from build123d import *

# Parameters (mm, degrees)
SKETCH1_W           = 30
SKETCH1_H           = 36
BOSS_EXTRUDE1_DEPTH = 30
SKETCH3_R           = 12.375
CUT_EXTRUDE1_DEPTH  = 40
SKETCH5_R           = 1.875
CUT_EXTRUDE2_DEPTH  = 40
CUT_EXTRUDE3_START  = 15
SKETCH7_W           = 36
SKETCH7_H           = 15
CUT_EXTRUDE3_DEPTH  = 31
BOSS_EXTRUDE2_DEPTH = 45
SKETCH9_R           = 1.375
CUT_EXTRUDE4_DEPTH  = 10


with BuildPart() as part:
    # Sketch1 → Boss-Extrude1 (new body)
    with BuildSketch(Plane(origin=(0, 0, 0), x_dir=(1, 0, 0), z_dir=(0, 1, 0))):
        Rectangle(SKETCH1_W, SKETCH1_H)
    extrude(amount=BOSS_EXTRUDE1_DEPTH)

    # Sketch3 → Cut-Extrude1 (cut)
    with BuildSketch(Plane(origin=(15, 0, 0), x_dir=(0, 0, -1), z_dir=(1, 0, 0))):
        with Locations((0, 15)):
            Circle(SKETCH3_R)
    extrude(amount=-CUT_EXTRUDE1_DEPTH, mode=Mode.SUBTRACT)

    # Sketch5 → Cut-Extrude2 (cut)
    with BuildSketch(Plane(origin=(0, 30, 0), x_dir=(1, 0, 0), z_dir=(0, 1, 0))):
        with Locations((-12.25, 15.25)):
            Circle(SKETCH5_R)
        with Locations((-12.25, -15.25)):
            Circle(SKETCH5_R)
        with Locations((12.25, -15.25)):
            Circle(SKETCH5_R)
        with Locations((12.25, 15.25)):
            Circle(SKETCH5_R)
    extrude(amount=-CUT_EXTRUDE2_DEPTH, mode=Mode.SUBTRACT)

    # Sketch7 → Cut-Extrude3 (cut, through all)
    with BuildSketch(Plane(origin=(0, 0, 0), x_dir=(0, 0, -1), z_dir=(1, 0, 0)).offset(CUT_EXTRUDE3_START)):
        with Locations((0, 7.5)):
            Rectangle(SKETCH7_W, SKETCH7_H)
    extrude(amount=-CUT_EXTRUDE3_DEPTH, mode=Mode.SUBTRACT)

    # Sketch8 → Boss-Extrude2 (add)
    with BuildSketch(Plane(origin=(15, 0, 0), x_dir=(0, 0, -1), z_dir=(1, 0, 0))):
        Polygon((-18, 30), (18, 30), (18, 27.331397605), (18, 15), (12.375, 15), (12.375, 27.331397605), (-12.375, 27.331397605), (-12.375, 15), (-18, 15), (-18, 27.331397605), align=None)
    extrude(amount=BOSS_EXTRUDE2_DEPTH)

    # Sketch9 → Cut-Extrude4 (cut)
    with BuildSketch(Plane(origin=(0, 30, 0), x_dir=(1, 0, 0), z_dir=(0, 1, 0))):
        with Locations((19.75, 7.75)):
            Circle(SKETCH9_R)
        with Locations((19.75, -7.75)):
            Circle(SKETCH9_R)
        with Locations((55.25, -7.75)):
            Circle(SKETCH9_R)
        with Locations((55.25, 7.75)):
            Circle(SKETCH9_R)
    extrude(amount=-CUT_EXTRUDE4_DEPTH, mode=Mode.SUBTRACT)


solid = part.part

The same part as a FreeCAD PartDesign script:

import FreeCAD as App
import Part
import Sketcher
Q = App.Units.Quantity


def add_polygon(sketch, points):
    """Adds a closed chain of lines whose ends are joined by coincident constraints."""
    first, n = sketch.GeometryCount, len(points)
    for a, b in zip(points, points[1:] + points[:1]):
        sketch.addGeometry(Part.LineSegment(App.Vector(*a, 0), App.Vector(*b, 0)), False)
    for i in range(n):
        sketch.addConstraint(Sketcher.Constraint("Coincident", first + i, 2, first + (i + 1) % n, 1))

doc = App.newDocument("Part")
body = doc.addObject("PartDesign::Body", "Body")

sketch1 = body.newObject("Sketcher::SketchObject", "Sketch")
sketch1.AttachmentSupport = (doc.getObject("XZ_Plane"), [""])
sketch1.MapMode = "FlatFace"
add_polygon(sketch1, [(-15, -18), (-15, 18), (15, 18), (15, -18)])
sketch1.addConstraint(Sketcher.Constraint("Vertical", 0))
sketch1.addConstraint(Sketcher.Constraint("Horizontal", 1))
sketch1.addConstraint(Sketcher.Constraint("Vertical", 2))
sketch1.addConstraint(Sketcher.Constraint("Horizontal", 3))
sketch1.addConstraint(Sketcher.Constraint("Symmetric", 0, 2, 2, 2, -1, 1))
sketch1.addConstraint(Sketcher.Constraint("DistanceX", 1, 1, 1, 2, Q("30 mm")))
sketch1.addConstraint(Sketcher.Constraint("DistanceY", 0, 1, 0, 2, Q("36 mm")))
pad1 = body.newObject("PartDesign::Pad", "Pad")
pad1.Profile = sketch1
pad1.Length = 30
pad1.Reversed = True

sketch2 = body.newObject("Sketcher::SketchObject", "Sketch001")
sketch2.AttachmentSupport = (doc.getObject("YZ_Plane"), [""])
sketch2.MapMode = "FlatFace"
sketch2.AttachmentOffset = App.Placement(App.Vector(0, 0, 15), App.Rotation())
sketch2.addGeometry(Part.Circle(App.Vector(15, 0, 0), App.Vector(0, 0, 1), 12.375), False)
sketch2.addConstraint(Sketcher.Constraint("PointOnObject", 0, 3, -1))
sketch2.addConstraint(Sketcher.Constraint("Diameter", 0, Q("24.75 mm")))
sketch2.addConstraint(Sketcher.Constraint("DistanceX", -1, 1, 0, 3, Q("15 mm")))
pocket1 = body.newObject("PartDesign::Pocket", "Pocket")
pocket1.Profile = sketch2
pocket1.Length = 40

sketch3 = body.newObject("Sketcher::SketchObject", "Sketch002")
sketch3.AttachmentSupport = (doc.getObject("XZ_Plane"), [""])
sketch3.MapMode = "FlatFace"
sketch3.AttachmentOffset = App.Placement(App.Vector(0, 0, -30), App.Rotation())
sketch3.addGeometry(Part.Circle(App.Vector(-12.25, -15.25, 0), App.Vector(0, 0, 1), 1.875), False)
sketch3.addGeometry(Part.Circle(App.Vector(-12.25, 15.25, 0), App.Vector(0, 0, 1), 1.875), False)
sketch3.addGeometry(Part.Circle(App.Vector(12.25, 15.25, 0), App.Vector(0, 0, 1), 1.875), False)
sketch3.addGeometry(Part.Circle(App.Vector(12.25, -15.25, 0), App.Vector(0, 0, 1), 1.875), False)
sketch3.addConstraint(Sketcher.Constraint("Equal", 0, 1))
sketch3.addConstraint(Sketcher.Constraint("Equal", 1, 2))
sketch3.addConstraint(Sketcher.Constraint("Equal", 2, 3))
sketch3.addConstraint(Sketcher.Constraint("Symmetric", 0, 3, 2, 3, -1, 1))
sketch3.addConstraint(Sketcher.Constraint("Symmetric", 1, 3, 3, 3, -1, 1))
sketch3.addConstraint(Sketcher.Constraint("Symmetric", 1, 3, 2, 3, -2))
sketch3.addConstraint(Sketcher.Constraint("Diameter", 0, Q("3.75 mm")))
sketch3.addConstraint(Sketcher.Constraint("DistanceY", 0, 3, 1, 3, Q("30.5 mm")))
sketch3.addConstraint(Sketcher.Constraint("DistanceX", 1, 3, 2, 3, Q("24.5 mm")))
pocket2 = body.newObject("PartDesign::Pocket", "Pocket001")
pocket2.Profile = sketch3
pocket2.Length = 40
pocket2.Reversed = True

sketch4 = body.newObject("Sketcher::SketchObject", "Sketch003")
sketch4.AttachmentSupport = (doc.getObject("YZ_Plane"), [""])
sketch4.MapMode = "FlatFace"
sketch4.AttachmentOffset = App.Placement(App.Vector(0, 0, 15), App.Rotation())
add_polygon(sketch4, [(15, 18), (0, 18), (0, -18), (15, -18)])
sketch4.addConstraint(Sketcher.Constraint("Horizontal", 0))
sketch4.addConstraint(Sketcher.Constraint("Vertical", 1))
sketch4.addConstraint(Sketcher.Constraint("Horizontal", 2))
sketch4.addConstraint(Sketcher.Constraint("Vertical", 3))
sketch4.addConstraint(Sketcher.Constraint("Symmetric", 0, 2, 1, 2, -1, 1))
sketch4.addConstraint(Sketcher.Constraint("DistanceX", 0, 2, 0, 1, Q("15 mm")))
sketch4.addConstraint(Sketcher.Constraint("DistanceY", 1, 2, 1, 1, Q("36 mm")))
pocket3 = body.newObject("PartDesign::Pocket", "Pocket002")
pocket3.Profile = sketch4
pocket3.Type = "ThroughAll"

sketch5 = body.newObject("Sketcher::SketchObject", "Sketch004")
sketch5.AttachmentSupport = (doc.getObject("YZ_Plane"), [""])
sketch5.MapMode = "FlatFace"
sketch5.AttachmentOffset = App.Placement(App.Vector(0, 0, 15), App.Rotation())
add_polygon(sketch5, [(30, -18), (30, 18), (15, 18), (15, 12.375), (27.331398, 12.375), (27.331398, -12.375), (15, -12.375), (15, -18)])
sketch5.addConstraint(Sketcher.Constraint("Vertical", 0))
sketch5.addConstraint(Sketcher.Constraint("Horizontal", 1))
sketch5.addConstraint(Sketcher.Constraint("Vertical", 2))
sketch5.addConstraint(Sketcher.Constraint("Horizontal", 3))
sketch5.addConstraint(Sketcher.Constraint("Vertical", 4))
sketch5.addConstraint(Sketcher.Constraint("Horizontal", 5))
sketch5.addConstraint(Sketcher.Constraint("Vertical", 6))
sketch5.addConstraint(Sketcher.Constraint("Horizontal", 7))
sketch5.addConstraint(Sketcher.Constraint("Symmetric", 2, 2, 5, 2, -1))
sketch5.addConstraint(Sketcher.Constraint("Equal", 2, 6))
sketch5.addConstraint(Sketcher.Constraint("DistanceX", 1, 2, 1, 1, Q("15 mm")))
sketch5.addConstraint(Sketcher.Constraint("DistanceY", 0, 1, 0, 2, Q("36 mm")))
sketch5.addConstraint(Sketcher.Constraint("DistanceX", -1, 1, 0, 2, Q("30 mm")))
sketch5.addConstraint(Sketcher.Constraint("DistanceY", 4, 2, 4, 1, Q("24.75 mm")))
sketch5.addConstraint(Sketcher.Constraint("DistanceX", 3, 1, 3, 2, Q("12.331398 mm")))
pad2 = body.newObject("PartDesign::Pad", "Pad001")
pad2.Profile = sketch5
pad2.Length = 45

sketch6 = body.newObject("Sketcher::SketchObject", "Sketch005")
sketch6.AttachmentSupport = (doc.getObject("XZ_Plane"), [""])
sketch6.MapMode = "FlatFace"
sketch6.AttachmentOffset = App.Placement(App.Vector(0, 0, -30), App.Rotation())
sketch6.addGeometry(Part.Circle(App.Vector(19.75, -7.75, 0), App.Vector(0, 0, 1), 1.375), False)
sketch6.addGeometry(Part.Circle(App.Vector(19.75, 7.75, 0), App.Vector(0, 0, 1), 1.375), False)
sketch6.addGeometry(Part.Circle(App.Vector(55.25, 7.75, 0), App.Vector(0, 0, 1), 1.375), False)
sketch6.addGeometry(Part.Circle(App.Vector(55.25, -7.75, 0), App.Vector(0, 0, 1), 1.375), False)
sketch6.addConstraint(Sketcher.Constraint("Equal", 0, 1))
sketch6.addConstraint(Sketcher.Constraint("Equal", 1, 2))
sketch6.addConstraint(Sketcher.Constraint("Equal", 2, 3))
sketch6.addConstraint(Sketcher.Constraint("Symmetric", 0, 3, 1, 3, -1))
sketch6.addConstraint(Sketcher.Constraint("Symmetric", 2, 3, 3, 3, -1))
sketch6.addConstraint(Sketcher.Constraint("Horizontal", 1, 3, 2, 3))
sketch6.addConstraint(Sketcher.Constraint("Diameter", 0, Q("2.75 mm")))
sketch6.addConstraint(Sketcher.Constraint("DistanceY", 0, 3, 1, 3, Q("15.5 mm")))
sketch6.addConstraint(Sketcher.Constraint("DistanceX", 1, 3, 2, 3, Q("35.5 mm")))
sketch6.addConstraint(Sketcher.Constraint("DistanceX", -1, 1, 0, 3, Q("19.75 mm")))
pocket4 = body.newObject("PartDesign::Pocket", "Pocket003")
pocket4.Profile = sketch6
pocket4.Length = 10
pocket4.Reversed = True

doc.recompute()
